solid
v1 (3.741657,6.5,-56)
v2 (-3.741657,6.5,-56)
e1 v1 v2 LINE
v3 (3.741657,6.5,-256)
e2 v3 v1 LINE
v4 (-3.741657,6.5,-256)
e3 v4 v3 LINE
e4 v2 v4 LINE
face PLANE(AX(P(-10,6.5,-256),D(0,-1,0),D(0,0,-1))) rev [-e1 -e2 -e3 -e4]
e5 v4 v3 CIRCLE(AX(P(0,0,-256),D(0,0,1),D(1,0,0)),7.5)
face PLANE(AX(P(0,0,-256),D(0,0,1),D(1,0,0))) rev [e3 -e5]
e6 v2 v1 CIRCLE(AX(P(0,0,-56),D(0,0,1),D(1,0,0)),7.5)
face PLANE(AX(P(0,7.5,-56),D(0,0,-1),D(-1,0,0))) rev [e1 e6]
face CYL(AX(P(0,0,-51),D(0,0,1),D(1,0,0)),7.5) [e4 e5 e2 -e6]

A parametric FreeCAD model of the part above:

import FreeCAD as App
import Part
import Sketcher
Q = App.Units.Quantity

doc = App.newDocument("Part")
params = doc.addObject("Spreadsheet::Sheet", "Params")
for row, (alias, value) in enumerate([
    ("sketch1_height", "200 mm"),
    ("sketch1_width", "7.5 mm"),
    ("revolution_angle", "360 deg"),
    ("sketch2_width", "20 mm"),
    ("sketch2_height", "5.5 mm"),
], start=1):
    params.set(f"A{row}", alias)
    params.set(f"B{row}", "=" + value)
    params.setAlias(f"B{row}", alias)

body = doc.addObject("PartDesign::Body", "Body")

# Sketch on YZ plane
sketch1 = body.newObject("Sketcher::SketchObject", "Sketch")
sketch1.AttachmentSupport = (doc.getObject("YZ_Plane"), [""])
sketch1.MapMode = "FlatFace"
sketch1.addGeometry([
    Part.LineSegment(App.Vector(8, -56, 0), App.Vector(0, -56, 0)),
    Part.LineSegment(App.Vector(0, -56, 0), App.Vector(0, -256, 0)),
    Part.LineSegment(App.Vector(0, -256, 0), App.Vector(8, -256, 0)),
    Part.LineSegment(App.Vector(8, -256, 0), App.Vector(8, -56, 0)),
], False)
sketch1.addConstraint([
    Sketcher.Constraint("Coincident", 0, 2, 1, 1),
    Sketcher.Constraint("Coincident", 1, 2, 2, 1),
    Sketcher.Constraint("Coincident", 2, 2, 3, 1),
    Sketcher.Constraint("Coincident", 3, 2, 0, 1),
    Sketcher.Constraint("Horizontal", 0),
    Sketcher.Constraint("Vertical", 1),
    Sketcher.Constraint("Horizontal", 2),
    Sketcher.Constraint("Vertical", 3),
    Sketcher.Constraint("PointOnObject", 0, 2, -2),
    Sketcher.Constraint("DistanceY", 1, 2, 1, 1, Q("200 mm")),
    Sketcher.Constraint("DistanceX", 0, 2, 0, 1, Q("7.5 mm")),
    Sketcher.Constraint("DistanceY", 0, 2, -1, 1, Q("56 mm")),
])
sketch1.setExpression("Constraints[9]", "Params.sketch1_height")
sketch1.setExpression("Constraints[10]", "Params.sketch1_width")
revolution = body.newObject("PartDesign::Revolution", "Revolution")
revolution.Profile = sketch1
revolution.ReferenceAxis = (sketch1, ["V_Axis"])
revolution.setExpression("Angle", "Params.revolution_angle")

# Sketch on XY plane
sketch2 = body.newObject("Sketcher::SketchObject", "Sketch001")
sketch2.AttachmentSupport = (doc.getObject("XY_Plane"), [""])
sketch2.MapMode = "FlatFace"
sketch2.addGeometry([
    Part.LineSegment(App.Vector(-10, 12, 0), App.Vector(-10, 6, 0)),
    Part.LineSegment(App.Vector(-10, 6, 0), App.Vector(10, 6, 0)),
    Part.LineSegment(App.Vector(10, 6, 0), App.Vector(10, 12, 0)),
    Part.LineSegment(App.Vector(10, 12, 0), App.Vector(-10, 12, 0)),
], False)
sketch2.addConstraint([
    Sketcher.Constraint("Coincident", 0, 2, 1, 1),
    Sketcher.Constraint("Coincident", 1, 2, 2, 1),
    Sketcher.Constraint("Coincident", 2, 2, 3, 1),
    Sketcher.Constraint("Coincident", 3, 2, 0, 1),
    Sketcher.Constraint("Vertical", 0),
    Sketcher.Constraint("Horizontal", 1),
    Sketcher.Constraint("Vertical", 2),
    Sketcher.Constraint("Horizontal", 3),
    Sketcher.Constraint("DistanceX", 1, 1, 1, 2, Q("20 mm")),
    Sketcher.Constraint("DistanceY", 0, 2, 0, 1, Q("5.5 mm")),
    Sketcher.Constraint("DistanceX", 0, 2, -1, 1, Q("10 mm")),
    Sketcher.Constraint("DistanceY", -1, 1, 2, 2, Q("12 mm")),
])
sketch2.setExpression("Constraints[8]", "Params.sketch2_width")
sketch2.setExpression("Constraints[9]", "Params.sketch2_height")
pocket1 = body.newObject("PartDesign::Pocket", "Pocket")
pocket1.Profile = sketch2
pocket1.Type = "ThroughAll"

doc.recompute()
